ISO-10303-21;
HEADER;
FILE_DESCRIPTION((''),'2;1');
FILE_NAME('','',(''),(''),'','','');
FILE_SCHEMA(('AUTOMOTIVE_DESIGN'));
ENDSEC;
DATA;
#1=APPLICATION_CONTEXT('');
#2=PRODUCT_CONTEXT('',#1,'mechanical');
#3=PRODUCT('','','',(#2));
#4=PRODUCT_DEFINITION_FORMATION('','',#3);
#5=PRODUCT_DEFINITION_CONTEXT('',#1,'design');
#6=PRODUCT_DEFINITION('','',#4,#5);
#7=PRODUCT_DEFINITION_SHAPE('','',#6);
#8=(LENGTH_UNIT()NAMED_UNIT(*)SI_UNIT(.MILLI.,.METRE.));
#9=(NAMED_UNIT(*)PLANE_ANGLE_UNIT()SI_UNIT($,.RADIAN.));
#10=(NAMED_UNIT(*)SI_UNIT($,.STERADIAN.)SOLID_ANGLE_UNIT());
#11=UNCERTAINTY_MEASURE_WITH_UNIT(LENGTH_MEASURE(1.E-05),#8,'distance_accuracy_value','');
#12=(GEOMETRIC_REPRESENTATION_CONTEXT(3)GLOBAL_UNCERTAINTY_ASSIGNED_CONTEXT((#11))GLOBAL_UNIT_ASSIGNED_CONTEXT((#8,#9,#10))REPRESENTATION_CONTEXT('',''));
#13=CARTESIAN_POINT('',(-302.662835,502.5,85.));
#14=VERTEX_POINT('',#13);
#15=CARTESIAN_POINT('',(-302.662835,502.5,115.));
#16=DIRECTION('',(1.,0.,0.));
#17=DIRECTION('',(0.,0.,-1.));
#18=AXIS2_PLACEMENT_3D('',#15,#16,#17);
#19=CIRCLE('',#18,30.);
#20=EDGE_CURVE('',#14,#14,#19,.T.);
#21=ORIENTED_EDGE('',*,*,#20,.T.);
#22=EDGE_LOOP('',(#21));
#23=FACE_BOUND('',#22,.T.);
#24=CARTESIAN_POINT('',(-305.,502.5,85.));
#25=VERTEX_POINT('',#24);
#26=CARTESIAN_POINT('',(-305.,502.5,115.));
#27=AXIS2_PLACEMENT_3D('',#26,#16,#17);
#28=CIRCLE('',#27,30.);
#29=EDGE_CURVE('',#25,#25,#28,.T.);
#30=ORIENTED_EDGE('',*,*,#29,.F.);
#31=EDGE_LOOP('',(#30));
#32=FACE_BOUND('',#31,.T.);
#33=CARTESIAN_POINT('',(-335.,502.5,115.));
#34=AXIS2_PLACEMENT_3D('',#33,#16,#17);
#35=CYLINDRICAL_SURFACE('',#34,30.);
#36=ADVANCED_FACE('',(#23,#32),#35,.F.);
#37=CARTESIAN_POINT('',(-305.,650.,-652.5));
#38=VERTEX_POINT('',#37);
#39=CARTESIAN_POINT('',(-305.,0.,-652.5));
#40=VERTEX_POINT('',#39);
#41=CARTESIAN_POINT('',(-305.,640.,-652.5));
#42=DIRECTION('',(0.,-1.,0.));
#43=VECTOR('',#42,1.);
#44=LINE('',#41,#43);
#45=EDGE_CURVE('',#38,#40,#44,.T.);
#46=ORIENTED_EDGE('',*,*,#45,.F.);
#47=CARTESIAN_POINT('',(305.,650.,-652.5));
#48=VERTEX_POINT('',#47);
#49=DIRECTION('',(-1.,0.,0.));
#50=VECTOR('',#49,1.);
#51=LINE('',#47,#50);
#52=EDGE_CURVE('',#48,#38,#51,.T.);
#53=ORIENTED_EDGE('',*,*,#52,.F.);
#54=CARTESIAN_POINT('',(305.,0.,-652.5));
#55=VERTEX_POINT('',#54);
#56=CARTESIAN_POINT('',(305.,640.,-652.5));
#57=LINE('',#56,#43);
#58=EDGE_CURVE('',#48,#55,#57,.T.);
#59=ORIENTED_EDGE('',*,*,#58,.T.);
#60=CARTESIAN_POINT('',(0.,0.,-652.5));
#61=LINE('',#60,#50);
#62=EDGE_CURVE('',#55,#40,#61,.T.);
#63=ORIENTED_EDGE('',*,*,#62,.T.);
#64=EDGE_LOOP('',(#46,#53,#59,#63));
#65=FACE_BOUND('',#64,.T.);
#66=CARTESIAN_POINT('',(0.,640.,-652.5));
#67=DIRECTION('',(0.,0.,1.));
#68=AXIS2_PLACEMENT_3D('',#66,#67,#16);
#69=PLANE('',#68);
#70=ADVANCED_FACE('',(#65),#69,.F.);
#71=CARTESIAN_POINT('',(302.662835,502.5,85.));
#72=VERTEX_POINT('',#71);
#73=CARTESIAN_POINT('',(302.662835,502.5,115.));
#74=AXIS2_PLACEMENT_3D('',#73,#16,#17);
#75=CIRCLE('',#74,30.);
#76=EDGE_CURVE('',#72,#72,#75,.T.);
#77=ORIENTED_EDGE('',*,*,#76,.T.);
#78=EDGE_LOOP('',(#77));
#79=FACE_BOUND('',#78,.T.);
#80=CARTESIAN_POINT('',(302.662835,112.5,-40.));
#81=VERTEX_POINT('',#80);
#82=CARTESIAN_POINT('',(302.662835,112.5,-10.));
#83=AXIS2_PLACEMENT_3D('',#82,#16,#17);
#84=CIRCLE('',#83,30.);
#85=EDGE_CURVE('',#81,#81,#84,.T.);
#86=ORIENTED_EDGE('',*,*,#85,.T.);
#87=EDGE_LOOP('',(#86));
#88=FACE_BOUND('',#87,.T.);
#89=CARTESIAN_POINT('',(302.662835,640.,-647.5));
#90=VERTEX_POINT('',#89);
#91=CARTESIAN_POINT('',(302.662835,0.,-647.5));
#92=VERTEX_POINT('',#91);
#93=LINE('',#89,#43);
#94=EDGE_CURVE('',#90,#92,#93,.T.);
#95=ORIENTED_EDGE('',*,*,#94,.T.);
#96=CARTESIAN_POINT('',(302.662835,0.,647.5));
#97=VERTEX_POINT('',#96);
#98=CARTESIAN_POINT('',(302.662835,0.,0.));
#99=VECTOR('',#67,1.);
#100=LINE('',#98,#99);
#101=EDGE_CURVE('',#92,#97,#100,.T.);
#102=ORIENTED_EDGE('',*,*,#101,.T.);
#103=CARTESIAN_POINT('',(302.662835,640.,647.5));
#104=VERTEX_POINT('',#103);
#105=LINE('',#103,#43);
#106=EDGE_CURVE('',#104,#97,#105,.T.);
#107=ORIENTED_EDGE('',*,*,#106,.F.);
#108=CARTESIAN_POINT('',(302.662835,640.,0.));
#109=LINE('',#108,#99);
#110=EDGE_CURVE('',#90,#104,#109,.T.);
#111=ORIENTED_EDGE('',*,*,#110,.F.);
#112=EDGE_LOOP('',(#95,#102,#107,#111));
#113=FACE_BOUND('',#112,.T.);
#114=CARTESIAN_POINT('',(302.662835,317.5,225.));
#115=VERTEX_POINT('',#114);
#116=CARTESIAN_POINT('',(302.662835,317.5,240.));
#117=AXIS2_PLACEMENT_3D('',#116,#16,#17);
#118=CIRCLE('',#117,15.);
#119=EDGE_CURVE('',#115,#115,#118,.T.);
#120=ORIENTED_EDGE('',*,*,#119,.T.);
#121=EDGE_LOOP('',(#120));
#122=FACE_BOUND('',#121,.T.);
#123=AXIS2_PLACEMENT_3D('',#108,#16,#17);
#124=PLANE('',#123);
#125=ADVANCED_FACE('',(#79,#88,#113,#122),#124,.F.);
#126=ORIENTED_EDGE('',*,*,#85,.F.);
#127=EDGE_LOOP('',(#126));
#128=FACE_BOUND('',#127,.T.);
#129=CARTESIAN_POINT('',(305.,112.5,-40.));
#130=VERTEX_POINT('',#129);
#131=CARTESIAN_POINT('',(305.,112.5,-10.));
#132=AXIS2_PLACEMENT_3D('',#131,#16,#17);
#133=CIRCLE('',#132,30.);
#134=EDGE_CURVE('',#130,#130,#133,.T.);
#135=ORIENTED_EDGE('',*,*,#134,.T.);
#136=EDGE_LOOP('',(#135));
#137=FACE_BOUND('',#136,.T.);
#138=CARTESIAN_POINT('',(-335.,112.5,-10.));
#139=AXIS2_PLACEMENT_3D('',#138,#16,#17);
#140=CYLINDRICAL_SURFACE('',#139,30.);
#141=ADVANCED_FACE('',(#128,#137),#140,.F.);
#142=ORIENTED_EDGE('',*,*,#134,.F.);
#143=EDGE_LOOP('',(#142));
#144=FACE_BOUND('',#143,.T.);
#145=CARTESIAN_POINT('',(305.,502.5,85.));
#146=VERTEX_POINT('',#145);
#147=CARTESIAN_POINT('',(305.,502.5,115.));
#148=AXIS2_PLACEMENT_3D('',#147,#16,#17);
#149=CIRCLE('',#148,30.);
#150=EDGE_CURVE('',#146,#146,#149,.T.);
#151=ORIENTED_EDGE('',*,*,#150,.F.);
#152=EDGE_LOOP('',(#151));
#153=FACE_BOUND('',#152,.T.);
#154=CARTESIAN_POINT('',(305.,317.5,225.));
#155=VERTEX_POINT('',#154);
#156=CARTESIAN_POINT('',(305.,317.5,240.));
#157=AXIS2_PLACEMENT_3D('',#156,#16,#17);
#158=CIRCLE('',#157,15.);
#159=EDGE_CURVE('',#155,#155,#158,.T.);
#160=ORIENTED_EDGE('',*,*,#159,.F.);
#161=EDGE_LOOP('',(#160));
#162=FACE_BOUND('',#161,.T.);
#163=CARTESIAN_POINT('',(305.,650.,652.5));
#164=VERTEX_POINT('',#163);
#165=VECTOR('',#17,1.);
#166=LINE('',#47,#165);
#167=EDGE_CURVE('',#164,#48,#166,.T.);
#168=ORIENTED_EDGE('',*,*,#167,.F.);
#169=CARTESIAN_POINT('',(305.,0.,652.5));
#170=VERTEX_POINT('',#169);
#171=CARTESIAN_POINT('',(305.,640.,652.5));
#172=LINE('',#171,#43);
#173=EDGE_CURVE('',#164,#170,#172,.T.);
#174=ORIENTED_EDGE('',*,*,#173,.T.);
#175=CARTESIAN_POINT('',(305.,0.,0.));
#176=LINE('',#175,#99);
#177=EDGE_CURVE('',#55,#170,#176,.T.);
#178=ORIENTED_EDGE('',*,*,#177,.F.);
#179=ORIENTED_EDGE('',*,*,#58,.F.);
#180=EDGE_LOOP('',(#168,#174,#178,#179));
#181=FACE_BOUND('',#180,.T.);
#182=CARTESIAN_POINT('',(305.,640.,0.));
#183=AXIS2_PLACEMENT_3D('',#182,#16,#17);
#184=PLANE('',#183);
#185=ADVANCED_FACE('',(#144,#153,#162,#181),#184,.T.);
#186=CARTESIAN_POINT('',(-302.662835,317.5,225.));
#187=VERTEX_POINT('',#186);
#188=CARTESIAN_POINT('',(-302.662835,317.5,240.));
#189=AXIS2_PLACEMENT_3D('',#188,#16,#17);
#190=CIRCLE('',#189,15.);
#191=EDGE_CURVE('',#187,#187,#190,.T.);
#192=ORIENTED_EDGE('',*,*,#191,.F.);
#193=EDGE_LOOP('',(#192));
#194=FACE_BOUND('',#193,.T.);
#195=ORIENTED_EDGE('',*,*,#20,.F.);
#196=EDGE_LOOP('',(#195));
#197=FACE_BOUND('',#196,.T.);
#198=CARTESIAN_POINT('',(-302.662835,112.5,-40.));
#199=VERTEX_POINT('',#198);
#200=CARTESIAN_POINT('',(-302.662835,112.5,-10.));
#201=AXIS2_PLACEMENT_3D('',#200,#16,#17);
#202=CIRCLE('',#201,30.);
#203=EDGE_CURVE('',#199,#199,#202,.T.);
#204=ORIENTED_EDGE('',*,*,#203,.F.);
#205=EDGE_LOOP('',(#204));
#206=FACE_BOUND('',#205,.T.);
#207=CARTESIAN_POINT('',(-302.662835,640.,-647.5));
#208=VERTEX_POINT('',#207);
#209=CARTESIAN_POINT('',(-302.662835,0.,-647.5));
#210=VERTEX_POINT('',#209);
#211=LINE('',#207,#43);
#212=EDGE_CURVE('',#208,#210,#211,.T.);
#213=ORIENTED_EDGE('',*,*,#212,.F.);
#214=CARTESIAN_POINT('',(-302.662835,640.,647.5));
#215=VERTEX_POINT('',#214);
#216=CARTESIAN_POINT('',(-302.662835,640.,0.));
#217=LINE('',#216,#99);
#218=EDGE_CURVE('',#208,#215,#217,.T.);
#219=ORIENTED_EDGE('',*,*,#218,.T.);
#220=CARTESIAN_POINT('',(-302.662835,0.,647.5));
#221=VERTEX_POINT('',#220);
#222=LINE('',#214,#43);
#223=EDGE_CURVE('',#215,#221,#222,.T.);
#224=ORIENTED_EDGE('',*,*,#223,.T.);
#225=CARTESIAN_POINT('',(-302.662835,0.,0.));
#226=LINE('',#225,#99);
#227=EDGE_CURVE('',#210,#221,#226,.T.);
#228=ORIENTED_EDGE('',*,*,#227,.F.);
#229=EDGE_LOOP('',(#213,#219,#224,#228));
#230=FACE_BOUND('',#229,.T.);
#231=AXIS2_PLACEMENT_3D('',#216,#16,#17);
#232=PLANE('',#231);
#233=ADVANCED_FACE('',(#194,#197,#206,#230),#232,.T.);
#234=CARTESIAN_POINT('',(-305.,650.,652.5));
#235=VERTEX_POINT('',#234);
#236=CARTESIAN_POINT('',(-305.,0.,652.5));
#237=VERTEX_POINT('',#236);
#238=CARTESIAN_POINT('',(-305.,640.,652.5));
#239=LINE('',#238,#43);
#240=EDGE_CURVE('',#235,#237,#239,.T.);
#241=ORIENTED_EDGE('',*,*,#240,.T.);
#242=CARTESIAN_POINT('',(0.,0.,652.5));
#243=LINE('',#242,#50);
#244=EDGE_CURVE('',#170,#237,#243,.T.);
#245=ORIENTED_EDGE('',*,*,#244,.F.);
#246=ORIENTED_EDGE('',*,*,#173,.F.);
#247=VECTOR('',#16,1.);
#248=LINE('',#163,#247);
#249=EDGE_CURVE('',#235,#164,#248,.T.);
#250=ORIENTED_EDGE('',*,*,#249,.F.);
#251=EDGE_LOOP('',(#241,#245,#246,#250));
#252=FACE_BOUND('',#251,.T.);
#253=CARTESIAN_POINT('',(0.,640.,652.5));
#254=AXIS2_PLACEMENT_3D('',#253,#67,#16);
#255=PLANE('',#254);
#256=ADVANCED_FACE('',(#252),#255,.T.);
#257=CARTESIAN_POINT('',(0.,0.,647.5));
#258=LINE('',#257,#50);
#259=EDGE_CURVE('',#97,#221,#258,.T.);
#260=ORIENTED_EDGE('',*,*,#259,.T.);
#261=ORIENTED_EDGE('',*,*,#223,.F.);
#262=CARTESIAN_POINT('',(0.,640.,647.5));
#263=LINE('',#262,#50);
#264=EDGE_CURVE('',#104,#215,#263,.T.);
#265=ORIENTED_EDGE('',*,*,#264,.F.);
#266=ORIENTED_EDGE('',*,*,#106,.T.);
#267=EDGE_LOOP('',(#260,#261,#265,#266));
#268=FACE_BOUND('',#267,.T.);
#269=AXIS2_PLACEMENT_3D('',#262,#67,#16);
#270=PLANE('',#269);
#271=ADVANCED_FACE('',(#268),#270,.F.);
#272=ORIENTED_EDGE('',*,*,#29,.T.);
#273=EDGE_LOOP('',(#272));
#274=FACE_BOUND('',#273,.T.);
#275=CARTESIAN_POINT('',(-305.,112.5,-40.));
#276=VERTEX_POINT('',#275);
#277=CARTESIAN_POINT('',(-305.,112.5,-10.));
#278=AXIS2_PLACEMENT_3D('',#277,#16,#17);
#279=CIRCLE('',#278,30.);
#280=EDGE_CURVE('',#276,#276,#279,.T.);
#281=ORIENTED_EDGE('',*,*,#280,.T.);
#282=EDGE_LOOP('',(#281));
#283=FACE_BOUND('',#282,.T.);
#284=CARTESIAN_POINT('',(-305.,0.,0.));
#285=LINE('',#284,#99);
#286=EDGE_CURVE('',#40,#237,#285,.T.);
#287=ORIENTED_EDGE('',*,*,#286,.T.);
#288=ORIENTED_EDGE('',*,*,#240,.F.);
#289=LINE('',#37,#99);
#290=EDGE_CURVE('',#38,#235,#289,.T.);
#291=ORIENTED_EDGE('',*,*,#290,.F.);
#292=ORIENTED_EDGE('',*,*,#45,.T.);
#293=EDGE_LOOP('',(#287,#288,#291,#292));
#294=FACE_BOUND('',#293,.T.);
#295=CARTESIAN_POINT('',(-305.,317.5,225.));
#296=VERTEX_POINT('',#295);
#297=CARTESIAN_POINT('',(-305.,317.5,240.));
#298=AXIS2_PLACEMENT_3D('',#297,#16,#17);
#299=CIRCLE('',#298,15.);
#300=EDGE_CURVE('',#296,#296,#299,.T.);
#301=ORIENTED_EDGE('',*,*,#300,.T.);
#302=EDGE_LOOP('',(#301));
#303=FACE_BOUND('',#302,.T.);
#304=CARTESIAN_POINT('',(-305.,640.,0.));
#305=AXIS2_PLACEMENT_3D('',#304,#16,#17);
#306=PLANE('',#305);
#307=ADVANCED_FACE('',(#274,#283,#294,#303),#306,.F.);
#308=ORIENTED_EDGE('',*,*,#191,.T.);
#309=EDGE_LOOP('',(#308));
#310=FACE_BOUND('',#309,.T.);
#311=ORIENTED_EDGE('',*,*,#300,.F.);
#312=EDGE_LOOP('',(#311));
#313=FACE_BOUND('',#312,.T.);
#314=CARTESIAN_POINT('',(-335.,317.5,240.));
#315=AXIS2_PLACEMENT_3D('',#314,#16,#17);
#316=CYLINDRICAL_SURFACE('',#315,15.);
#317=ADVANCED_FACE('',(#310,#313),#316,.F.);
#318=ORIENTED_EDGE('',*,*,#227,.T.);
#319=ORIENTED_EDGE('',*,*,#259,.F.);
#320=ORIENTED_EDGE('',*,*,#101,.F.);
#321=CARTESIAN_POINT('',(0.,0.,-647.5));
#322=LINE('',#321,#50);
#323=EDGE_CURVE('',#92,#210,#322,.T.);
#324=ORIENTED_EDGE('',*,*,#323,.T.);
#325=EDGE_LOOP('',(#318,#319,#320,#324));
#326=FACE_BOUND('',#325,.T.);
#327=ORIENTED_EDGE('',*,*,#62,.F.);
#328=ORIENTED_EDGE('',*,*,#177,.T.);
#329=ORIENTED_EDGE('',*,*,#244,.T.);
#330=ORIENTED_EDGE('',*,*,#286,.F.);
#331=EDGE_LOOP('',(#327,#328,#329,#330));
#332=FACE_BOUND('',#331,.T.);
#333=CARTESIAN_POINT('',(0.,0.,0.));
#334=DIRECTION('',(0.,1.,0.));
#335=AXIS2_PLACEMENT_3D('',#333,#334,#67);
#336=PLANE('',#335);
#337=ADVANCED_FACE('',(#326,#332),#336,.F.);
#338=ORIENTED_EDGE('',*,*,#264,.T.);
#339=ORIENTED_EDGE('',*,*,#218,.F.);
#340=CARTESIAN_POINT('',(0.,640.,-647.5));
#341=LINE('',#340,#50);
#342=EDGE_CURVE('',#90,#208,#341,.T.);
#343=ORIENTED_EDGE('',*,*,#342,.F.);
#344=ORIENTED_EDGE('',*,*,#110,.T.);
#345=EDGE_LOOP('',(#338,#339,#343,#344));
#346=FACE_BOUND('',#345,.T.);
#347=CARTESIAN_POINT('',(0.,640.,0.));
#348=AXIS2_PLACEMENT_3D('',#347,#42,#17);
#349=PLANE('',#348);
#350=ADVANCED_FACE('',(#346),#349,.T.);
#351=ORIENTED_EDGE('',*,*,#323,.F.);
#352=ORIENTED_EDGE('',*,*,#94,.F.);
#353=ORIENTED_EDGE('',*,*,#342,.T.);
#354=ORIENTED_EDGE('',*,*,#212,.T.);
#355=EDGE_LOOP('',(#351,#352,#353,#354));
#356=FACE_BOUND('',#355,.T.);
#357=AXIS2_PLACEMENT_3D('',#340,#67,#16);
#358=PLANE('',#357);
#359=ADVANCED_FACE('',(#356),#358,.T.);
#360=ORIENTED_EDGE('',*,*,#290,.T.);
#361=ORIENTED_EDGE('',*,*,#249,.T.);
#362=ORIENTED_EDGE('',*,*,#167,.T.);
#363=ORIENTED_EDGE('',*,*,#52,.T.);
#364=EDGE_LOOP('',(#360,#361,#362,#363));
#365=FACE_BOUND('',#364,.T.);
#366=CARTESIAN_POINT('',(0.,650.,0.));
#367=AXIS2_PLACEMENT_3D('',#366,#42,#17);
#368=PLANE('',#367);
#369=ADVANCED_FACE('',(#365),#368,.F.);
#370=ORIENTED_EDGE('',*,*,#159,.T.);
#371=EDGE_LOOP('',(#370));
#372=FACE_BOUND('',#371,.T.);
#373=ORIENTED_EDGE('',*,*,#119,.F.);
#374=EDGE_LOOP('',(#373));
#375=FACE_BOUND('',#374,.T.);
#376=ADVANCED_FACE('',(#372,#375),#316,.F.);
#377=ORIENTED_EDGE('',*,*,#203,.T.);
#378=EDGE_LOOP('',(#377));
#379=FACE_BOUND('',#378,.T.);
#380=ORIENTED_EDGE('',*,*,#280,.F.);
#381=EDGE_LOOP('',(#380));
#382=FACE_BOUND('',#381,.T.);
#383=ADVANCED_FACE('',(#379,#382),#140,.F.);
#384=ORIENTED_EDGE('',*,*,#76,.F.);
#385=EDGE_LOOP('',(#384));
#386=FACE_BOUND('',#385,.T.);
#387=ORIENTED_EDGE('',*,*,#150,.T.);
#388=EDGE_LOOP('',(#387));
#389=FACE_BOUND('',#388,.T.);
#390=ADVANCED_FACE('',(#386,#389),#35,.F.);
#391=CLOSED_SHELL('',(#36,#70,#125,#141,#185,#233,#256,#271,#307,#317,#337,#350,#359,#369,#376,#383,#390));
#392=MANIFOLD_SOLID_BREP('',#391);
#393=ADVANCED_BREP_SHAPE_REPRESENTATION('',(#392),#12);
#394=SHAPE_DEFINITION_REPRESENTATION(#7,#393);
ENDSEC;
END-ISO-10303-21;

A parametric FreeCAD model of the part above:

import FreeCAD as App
import Part
import Sketcher
from FreeCAD import Vector
Q = App.Units.Quantity


def add_polygon(sketch, points):
    """Adds a closed chain of lines whose ends are joined by coincident constraints."""
    first, n = sketch.GeometryCount, len(points)
    for a, b in zip(points, points[1:] + points[:1]):
        sketch.addGeometry(Part.LineSegment(App.Vector(*a, 0), App.Vector(*b, 0)), False)
    for i in range(n):
        sketch.addConstraint(Sketcher.Constraint("Coincident", first + i, 2, first + (i + 1) % n, 1))

doc = App.newDocument("Part")
body = doc.addObject("PartDesign::Body", "Body")

sketch1 = body.newObject("Sketcher::SketchObject", "Sketch")
sketch1.AttachmentSupport = (doc.getObject("XZ_Plane"), [""])
sketch1.MapMode = "FlatFace"
add_polygon(sketch1, [(-305, -652), (-305, 652), (305, 652), (305, -652)])
add_polygon(sketch1, [(303, 648), (-303, 648), (-303, -648), (303, -648)])
sketch1.addConstraint([
    Sketcher.Constraint("Vertical", 0),
    Sketcher.Constraint("Horizontal", 1),
    Sketcher.Constraint("Vertical", 2),
    Sketcher.Constraint("Horizontal", 3),
    Sketcher.Constraint("Horizontal", 4),
    Sketcher.Constraint("Vertical", 5),
    Sketcher.Constraint("Horizontal", 6),
    Sketcher.Constraint("Vertical", 7),
    Sketcher.Constraint("Symmetric", 0, 2, 2, 2, -1, 1),
    Sketcher.Constraint("Symmetric", 4, 2, 6, 2, -1, 1),
    Sketcher.Constraint("DistanceX", 1, 1, 1, 2, Q("610 mm")),
    Sketcher.Constraint("DistanceY", 0, 1, 0, 2, Q("1305 mm")),
    Sketcher.Constraint("DistanceY", 5, 2, 5, 1, Q("1295 mm")),
    Sketcher.Constraint("DistanceX", 4, 2, 4, 1, Q("605.32567 mm")),
])
pad1 = body.newObject("PartDesign::Pad", "Pad")
pad1.Profile = sketch1
pad1.Length = 640
pad1.Reversed = True

sketch2 = body.newObject("Sketcher::SketchObject", "Sketch001")
sketch2.AttachmentSupport = (doc.getObject("YZ_Plane"), [""])
sketch2.MapMode = "FlatFace"
sketch2.AttachmentOffset = App.Placement(Vector(0, 0, 305), App.Rotation())
sketch2.addGeometry([
    Part.Circle(Vector(502, 115, 0), Vector(0, 0, 1), 30),
    Part.Circle(Vector(112, -10, 0), Vector(0, 0, 1), 30),
    Part.Circle(Vector(318, 240, 0), Vector(0, 0, 1), 15),
], False)
sketch2.addConstraint([
    Sketcher.Constraint("Equal", 0, 1),
    Sketcher.Constraint("Diameter", 0, Q("60 mm")),
    Sketcher.Constraint("Diameter", 2, Q("30 mm")),
    Sketcher.Constraint("DistanceY", -1, 1, 0, 3, Q("115 mm")),
    Sketcher.Constraint("DistanceY", 1, 3, -1, 1, Q("10 mm")),
    Sketcher.Constraint("DistanceY", -1, 1, 2, 3, Q("240 mm")),
    Sketcher.Constraint("DistanceX", 1, 3, 0, 3, Q("390 mm")),
    Sketcher.Constraint("DistanceX", 2, 3, 0, 3, Q("185 mm")),
    Sketcher.Constraint("DistanceX", -1, 1, 0, 3, Q("502.5 mm")),
])
pocket1 = body.newObject("PartDesign::Pocket", "Pocket")
pocket1.Profile = sketch2
pocket1.Length = 640

sketch3 = body.newObject("Sketcher::SketchObject", "Sketch002")
sketch3.AttachmentSupport = (doc.getObject("XZ_Plane"), [""])
sketch3.MapMode = "FlatFace"
sketch3.AttachmentOffset = App.Placement(Vector(0, 0, -640), App.Rotation())
add_polygon(sketch3, [(-305, -652), (-305, 652), (305, 652), (305, -652)])
sketch3.addConstraint([
    Sketcher.Constraint("Vertical", 0),
    Sketcher.Constraint("Horizontal", 1),
    Sketcher.Constraint("Vertical", 2),
    Sketcher.Constraint("Horizontal", 3),
    Sketcher.Constraint("Symmetric", 0, 2, 2, 2, -1, 1),
    Sketcher.Constraint("DistanceX", 1, 1, 1, 2, Q("610 mm")),
    Sketcher.Constraint("DistanceY", 0, 1, 0, 2, Q("1305 mm")),
])
pad2 = body.newObject("PartDesign::Pad", "Pad001")
pad2.Profile = sketch3
pad2.Length = 10
pad2.Reversed = True

doc.recompute()
